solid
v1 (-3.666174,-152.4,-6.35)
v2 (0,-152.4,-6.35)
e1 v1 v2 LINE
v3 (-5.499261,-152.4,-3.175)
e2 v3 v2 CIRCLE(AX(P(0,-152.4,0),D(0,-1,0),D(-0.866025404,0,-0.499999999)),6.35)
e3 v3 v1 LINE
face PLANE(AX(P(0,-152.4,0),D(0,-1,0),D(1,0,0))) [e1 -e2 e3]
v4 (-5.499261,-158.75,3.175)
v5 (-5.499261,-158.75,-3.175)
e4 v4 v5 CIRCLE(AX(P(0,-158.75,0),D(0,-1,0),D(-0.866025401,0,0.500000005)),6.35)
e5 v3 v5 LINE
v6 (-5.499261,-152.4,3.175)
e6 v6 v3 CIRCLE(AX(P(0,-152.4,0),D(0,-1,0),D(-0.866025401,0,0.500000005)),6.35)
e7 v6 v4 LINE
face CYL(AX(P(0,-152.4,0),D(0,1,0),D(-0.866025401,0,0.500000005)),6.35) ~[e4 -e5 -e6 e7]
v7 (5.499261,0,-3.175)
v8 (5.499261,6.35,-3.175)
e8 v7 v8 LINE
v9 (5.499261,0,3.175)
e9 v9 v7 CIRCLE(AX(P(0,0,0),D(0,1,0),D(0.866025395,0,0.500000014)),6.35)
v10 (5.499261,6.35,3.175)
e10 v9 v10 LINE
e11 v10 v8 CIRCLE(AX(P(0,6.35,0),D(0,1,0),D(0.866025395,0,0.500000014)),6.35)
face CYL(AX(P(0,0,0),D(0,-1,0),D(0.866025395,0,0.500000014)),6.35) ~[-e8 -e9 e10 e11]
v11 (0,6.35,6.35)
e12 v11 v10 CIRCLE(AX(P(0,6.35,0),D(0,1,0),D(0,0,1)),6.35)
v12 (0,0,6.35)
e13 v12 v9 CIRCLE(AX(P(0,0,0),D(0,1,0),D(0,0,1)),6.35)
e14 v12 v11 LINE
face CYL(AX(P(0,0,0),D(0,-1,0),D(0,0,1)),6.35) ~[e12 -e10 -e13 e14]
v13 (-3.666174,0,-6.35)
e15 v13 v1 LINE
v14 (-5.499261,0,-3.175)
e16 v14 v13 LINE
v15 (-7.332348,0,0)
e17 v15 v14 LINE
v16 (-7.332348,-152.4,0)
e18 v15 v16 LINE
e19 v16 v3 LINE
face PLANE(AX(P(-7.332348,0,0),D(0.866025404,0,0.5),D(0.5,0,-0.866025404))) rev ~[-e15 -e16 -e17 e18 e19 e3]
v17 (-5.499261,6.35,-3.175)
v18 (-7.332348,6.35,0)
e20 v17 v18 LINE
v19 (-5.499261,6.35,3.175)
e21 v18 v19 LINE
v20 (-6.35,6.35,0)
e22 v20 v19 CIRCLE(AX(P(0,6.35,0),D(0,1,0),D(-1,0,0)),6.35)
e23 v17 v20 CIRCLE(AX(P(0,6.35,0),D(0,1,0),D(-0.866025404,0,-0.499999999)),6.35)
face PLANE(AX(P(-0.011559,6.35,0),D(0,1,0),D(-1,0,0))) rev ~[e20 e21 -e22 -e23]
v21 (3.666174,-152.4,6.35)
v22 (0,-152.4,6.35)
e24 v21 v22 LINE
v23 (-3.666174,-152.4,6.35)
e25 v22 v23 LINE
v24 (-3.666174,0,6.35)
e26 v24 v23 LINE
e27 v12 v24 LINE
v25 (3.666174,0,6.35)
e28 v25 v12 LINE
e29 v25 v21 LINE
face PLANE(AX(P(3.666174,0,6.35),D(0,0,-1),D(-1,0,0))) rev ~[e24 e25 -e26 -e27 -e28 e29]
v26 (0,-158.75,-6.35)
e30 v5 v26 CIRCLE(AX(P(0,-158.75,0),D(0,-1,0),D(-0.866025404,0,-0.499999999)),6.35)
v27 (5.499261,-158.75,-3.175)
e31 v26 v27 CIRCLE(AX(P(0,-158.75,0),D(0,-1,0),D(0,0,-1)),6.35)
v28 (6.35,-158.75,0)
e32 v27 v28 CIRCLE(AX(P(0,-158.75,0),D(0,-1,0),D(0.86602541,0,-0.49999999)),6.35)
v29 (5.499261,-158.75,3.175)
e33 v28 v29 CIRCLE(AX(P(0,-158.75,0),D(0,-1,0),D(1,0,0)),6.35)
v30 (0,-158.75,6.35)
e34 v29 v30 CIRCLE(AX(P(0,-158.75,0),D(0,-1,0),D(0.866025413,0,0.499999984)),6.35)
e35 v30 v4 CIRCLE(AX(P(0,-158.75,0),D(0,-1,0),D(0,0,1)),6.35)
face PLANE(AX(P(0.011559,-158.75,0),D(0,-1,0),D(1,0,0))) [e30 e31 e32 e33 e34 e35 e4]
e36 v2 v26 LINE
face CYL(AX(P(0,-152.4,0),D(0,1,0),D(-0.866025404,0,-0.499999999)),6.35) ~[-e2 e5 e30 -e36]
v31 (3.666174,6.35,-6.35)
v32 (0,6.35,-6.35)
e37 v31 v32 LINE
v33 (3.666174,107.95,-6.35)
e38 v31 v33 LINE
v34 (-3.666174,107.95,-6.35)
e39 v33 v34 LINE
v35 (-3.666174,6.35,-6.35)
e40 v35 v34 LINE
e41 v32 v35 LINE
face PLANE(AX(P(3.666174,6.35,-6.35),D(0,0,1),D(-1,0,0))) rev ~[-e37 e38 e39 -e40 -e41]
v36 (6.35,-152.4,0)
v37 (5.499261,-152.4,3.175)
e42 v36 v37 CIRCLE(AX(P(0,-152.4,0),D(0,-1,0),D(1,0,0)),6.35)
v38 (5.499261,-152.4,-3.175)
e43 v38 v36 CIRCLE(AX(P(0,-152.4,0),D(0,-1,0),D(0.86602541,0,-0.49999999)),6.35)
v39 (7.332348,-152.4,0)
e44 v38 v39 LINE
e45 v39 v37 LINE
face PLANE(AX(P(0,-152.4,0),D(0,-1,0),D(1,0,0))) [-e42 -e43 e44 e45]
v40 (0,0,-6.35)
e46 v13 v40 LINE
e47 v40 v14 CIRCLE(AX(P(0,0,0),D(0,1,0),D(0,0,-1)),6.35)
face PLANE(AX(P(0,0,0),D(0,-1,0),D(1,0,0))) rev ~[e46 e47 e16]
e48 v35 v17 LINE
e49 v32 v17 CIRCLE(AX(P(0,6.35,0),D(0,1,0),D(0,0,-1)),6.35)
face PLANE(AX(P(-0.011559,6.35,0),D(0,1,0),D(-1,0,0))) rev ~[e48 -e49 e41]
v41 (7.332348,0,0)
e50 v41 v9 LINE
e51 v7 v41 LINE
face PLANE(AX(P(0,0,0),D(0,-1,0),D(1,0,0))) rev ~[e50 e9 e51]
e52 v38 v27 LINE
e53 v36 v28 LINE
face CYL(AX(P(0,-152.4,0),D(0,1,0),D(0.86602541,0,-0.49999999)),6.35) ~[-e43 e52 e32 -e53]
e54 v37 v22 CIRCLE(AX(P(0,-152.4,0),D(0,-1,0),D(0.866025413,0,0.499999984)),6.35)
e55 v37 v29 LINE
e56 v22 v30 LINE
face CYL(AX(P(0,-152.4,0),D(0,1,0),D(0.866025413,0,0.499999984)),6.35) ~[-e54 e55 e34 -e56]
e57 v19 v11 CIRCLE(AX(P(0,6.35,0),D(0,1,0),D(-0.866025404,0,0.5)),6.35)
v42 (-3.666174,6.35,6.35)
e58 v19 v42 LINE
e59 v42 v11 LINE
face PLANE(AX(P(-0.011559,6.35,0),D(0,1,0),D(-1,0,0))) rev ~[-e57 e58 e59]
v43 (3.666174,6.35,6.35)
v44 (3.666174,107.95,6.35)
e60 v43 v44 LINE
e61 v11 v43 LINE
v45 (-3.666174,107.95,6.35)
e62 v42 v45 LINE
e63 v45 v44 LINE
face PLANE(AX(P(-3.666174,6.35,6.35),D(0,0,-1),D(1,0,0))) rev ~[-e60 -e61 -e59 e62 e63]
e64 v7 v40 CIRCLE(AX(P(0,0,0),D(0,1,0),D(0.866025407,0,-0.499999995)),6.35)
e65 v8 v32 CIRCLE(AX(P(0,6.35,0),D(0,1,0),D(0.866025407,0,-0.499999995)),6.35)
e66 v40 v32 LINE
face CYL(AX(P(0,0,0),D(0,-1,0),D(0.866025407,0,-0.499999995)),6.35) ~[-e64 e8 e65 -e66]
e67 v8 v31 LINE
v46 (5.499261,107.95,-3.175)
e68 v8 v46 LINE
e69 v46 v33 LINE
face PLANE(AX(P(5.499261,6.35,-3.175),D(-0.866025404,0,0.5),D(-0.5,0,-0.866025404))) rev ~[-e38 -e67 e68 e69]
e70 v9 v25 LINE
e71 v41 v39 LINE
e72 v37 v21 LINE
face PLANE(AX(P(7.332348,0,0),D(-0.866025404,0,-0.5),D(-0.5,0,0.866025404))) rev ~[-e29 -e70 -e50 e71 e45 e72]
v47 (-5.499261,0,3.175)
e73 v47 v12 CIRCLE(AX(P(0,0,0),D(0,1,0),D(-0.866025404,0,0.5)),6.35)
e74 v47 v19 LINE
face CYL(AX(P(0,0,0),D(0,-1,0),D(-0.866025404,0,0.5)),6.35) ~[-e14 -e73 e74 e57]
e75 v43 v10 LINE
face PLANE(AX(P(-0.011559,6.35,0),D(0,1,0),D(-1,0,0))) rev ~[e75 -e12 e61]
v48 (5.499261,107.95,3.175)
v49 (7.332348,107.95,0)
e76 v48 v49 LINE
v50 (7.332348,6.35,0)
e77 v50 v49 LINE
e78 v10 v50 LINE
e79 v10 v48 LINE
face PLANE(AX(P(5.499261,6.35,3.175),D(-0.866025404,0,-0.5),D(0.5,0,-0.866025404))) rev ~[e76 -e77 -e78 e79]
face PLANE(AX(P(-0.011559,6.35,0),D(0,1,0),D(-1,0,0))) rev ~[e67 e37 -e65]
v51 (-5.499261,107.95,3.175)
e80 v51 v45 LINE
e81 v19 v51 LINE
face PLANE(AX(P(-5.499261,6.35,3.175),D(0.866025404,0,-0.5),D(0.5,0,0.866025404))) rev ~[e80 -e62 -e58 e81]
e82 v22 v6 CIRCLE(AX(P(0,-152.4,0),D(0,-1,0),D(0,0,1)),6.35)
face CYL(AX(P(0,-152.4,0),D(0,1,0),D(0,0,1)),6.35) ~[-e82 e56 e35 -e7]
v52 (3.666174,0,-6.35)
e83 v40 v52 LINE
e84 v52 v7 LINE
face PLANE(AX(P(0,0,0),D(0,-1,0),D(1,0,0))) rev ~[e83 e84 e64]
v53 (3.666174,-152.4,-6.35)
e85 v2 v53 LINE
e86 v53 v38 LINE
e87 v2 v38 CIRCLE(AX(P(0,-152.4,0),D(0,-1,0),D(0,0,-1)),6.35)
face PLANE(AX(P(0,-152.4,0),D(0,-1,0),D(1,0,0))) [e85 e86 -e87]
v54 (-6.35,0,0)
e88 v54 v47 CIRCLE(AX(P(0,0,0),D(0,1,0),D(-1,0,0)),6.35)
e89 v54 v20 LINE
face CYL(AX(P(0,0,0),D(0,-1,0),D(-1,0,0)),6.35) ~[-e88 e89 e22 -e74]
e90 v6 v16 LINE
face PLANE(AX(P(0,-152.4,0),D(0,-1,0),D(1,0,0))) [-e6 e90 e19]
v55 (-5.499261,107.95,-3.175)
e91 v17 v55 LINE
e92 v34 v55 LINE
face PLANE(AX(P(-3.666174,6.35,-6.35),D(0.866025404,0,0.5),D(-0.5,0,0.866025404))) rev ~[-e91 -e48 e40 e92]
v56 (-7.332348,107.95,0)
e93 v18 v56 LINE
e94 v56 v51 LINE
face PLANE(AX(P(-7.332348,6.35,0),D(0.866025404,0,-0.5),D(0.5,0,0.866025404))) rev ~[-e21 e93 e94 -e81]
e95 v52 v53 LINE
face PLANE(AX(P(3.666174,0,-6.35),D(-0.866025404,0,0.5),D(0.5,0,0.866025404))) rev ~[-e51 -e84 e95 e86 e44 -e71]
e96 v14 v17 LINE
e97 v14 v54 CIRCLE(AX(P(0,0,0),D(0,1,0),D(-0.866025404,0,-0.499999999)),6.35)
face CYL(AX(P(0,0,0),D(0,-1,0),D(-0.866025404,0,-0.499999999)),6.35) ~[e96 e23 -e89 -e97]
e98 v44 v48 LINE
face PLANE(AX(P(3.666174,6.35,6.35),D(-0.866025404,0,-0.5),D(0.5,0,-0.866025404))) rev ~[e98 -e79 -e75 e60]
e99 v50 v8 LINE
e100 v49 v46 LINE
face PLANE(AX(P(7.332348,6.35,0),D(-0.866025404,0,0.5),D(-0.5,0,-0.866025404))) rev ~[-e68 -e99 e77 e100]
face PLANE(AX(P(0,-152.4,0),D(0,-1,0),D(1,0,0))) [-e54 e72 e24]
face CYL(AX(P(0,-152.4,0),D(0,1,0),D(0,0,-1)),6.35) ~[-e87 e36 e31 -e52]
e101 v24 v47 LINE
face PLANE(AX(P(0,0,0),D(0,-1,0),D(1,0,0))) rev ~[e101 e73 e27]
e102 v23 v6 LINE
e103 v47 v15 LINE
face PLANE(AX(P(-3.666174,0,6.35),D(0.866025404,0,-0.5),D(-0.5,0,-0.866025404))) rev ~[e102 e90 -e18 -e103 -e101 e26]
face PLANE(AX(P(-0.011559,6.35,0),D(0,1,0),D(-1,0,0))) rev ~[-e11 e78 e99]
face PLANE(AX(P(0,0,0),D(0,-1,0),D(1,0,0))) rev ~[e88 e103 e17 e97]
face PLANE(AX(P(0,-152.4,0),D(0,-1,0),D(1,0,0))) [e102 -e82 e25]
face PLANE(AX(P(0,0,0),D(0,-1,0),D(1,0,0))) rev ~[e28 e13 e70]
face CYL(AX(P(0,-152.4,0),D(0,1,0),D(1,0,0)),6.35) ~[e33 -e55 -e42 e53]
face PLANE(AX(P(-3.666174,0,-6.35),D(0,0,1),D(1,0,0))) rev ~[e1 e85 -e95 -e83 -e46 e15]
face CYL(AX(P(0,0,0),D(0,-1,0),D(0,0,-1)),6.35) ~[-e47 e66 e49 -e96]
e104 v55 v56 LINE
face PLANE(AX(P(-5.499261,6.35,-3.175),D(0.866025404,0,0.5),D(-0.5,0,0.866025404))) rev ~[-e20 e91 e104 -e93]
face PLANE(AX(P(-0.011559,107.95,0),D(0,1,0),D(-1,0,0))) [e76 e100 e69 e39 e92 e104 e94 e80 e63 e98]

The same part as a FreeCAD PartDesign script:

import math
import FreeCAD as App
import Part
import Sketcher
Q = App.Units.Quantity


def add_polygon(sketch, points):
    """Adds a closed chain of lines whose ends are joined by coincident constraints."""
    first, n = sketch.GeometryCount, len(points)
    for a, b in zip(points, points[1:] + points[:1]):
        sketch.addGeometry(Part.LineSegment(App.Vector(*a, 0), App.Vector(*b, 0)), False)
    for i in range(n):
        sketch.addConstraint(Sketcher.Constraint("Coincident", first + i, 2, first + (i + 1) % n, 1))

doc = App.newDocument("Part")
params = doc.addObject("Spreadsheet::Sheet", "Params")
for row, (alias, value) in enumerate([
    ("pad1_length", "6 in"),
    ("sketch2_radius", "0.25 in"),
    ("pad2_length", "0.25 in"),
    ("sketch3_radius", "0.25 in"),
    ("pad3_length", "0.25 in"),
    ("pad4_length", "4 in"),
], start=1):
    params.set(f"A{row}", alias)
    params.set(f"B{row}", "=" + value)
    params.setAlias(f"B{row}", alias)

body = doc.addObject("PartDesign::Body", "Body")

# Sketch on XZ plane
sketch1 = doc.addObject("Sketcher::SketchObject", "Sketch")
body.addObject(sketch1)
sketch1.AttachmentSupport = (doc.XZ_Plane, [""])
sketch1.MapMode = "FlatFace"
add_polygon(sketch1, [(-4, -6), (4, -6), (7, 0), (4, 6), (-4, 6), (-7, 0)])  # lines 0-5
sketch1.addConstraint([
    Sketcher.Constraint("Horizontal", 0),
    Sketcher.Constraint("Horizontal", 3),
    Sketcher.Constraint("Symmetric", 0, 2, 3, 2, -1, 1),
    Sketcher.Constraint("Symmetric", 1, 2, 4, 2, -1, 1),
    Sketcher.Constraint("PointOnObject", 1, 2, -1),
    Sketcher.Constraint("Parallel", 2, 5),
    Sketcher.Constraint("Vertical", 0, 2, 2, 2),
    Sketcher.Constraint("Angle", 1, Q("60 deg")),
    Sketcher.Constraint("DistanceY", 0, 2, 2, 2, Q("0.5 in")),
    Sketcher.Constraint("DistanceX", 0, 1, 0, 2, 7.332348),
])
pad1 = doc.addObject("PartDesign::Pad", "Pad")
body.addObject(pad1)
pad1.Profile = sketch1
pad1.setExpression("Length", "Params.pad1_length")

# Sketch on XZ plane
sketch2 = doc.addObject("Sketcher::SketchObject", "Sketch001")
body.addObject(sketch2)
sketch2.AttachmentSupport = (doc.XZ_Plane, [""])
sketch2.MapMode = "FlatFace"
sketch2.AttachmentOffset = App.Placement(App.Vector(0, 0, 6 * 25.4), App.Rotation())
sketch2.addGeometry([
    Part.ArcOfCircle(Part.Circle(App.Vector(0, 0, 0), App.Vector(0, 0, 1), 6.3), math.radians(-30), math.radians(0)),  # 0
    Part.ArcOfCircle(Part.Circle(App.Vector(0, 0, 0), App.Vector(0, 0, 1), 6.3), math.radians(0), math.radians(30)),  # 1
    Part.ArcOfCircle(Part.Circle(App.Vector(0, 0, 0), App.Vector(0, 0, 1), 6.3), math.radians(30), math.radians(90)),  # 2
    Part.ArcOfCircle(Part.Circle(App.Vector(0, 0, 0), App.Vector(0, 0, 1), 6.3), math.radians(90), math.radians(150)),  # 3
    Part.ArcOfCircle(Part.Circle(App.Vector(0, 0, 0), App.Vector(0, 0, 1), 6.3), math.radians(150), math.radians(210)),  # 4
    Part.ArcOfCircle(Part.Circle(App.Vector(0, 0, 0), App.Vector(0, 0, 1), 6.3), math.radians(-150), math.radians(-90)),  # 5
    Part.ArcOfCircle(Part.Circle(App.Vector(0, 0, 0), App.Vector(0, 0, 1), 6.3), math.radians(-90), math.radians(-30)),  # 6
], False)
sketch2.addConstraint([
    Sketcher.Constraint("Tangent", 0, 2, 1, 1),
    Sketcher.Constraint("Tangent", 1, 2, 2, 1),
    Sketcher.Constraint("Tangent", 2, 2, 3, 1),
    Sketcher.Constraint("Tangent", 3, 2, 4, 1),
    Sketcher.Constraint("Tangent", 4, 2, 5, 1),
    Sketcher.Constraint("Tangent", 5, 2, 6, 1),
    Sketcher.Constraint("Tangent", 6, 2, 0, 1),
    Sketcher.Constraint("Coincident", 0, 3, -1, 1),
    Sketcher.Constraint("Coincident", 2, 3, -1, 1),
    Sketcher.Constraint("Coincident", 4, 3, -1, 1),
    Sketcher.Constraint("PointOnObject", 0, 2, -1),
    Sketcher.Constraint("PointOnObject", 2, 2, -2),
    Sketcher.Constraint("PointOnObject", 5, 2, -2),
    Sketcher.Constraint("Horizontal", 1, 2, 3, 2),
    Sketcher.Constraint("Horizontal", 4, 2, 6, 2),
    Sketcher.Constraint("Vertical", 3, 2, 4, 2),
    Sketcher.Constraint("Radius", 0, Q("0.25 in")),
    Sketcher.Constraint("DistanceY", 6, 2, 1, 2, Q("0.25 in")),
])
sketch2.setExpression("Constraints[16]", "Params.sketch2_radius")
pad2 = doc.addObject("PartDesign::Pad", "Pad001")
body.addObject(pad2)
pad2.Profile = sketch2
pad2.setExpression("Length", "Params.pad2_length")

# Sketch on XZ plane
sketch3 = doc.addObject("Sketcher::SketchObject", "Sketch002")
body.addObject(sketch3)
sketch3.AttachmentSupport = (doc.XZ_Plane, [""])
sketch3.MapMode = "FlatFace"
sketch3.addGeometry([
    Part.ArcOfCircle(Part.Circle(App.Vector(0, 0, 0), App.Vector(0, 0, 1), 6.4), math.radians(180), math.radians(210)),  # 0
    Part.ArcOfCircle(Part.Circle(App.Vector(0, 0, 0), App.Vector(0, 0, 1), 6.3), math.radians(150), math.radians(180)),  # 1
    Part.ArcOfCircle(Part.Circle(App.Vector(0, 0, 0), App.Vector(0, 0, 1), 6.3), math.radians(90), math.radians(150)),  # 2
    Part.ArcOfCircle(Part.Circle(App.Vector(0, 0, 0), App.Vector(0, 0, 1), 6.3), math.radians(30), math.radians(90)),  # 3
    Part.ArcOfCircle(Part.Circle(App.Vector(0, 0, 0), App.Vector(0, 0, 1), 6.3), math.radians(-30), math.radians(30)),  # 4
    Part.ArcOfCircle(Part.Circle(App.Vector(0, 0, 0), App.Vector(0, 0, 1), 6.3), math.radians(-90), math.radians(-30)),  # 5
    Part.ArcOfCircle(Part.Circle(App.Vector(0, 0, 0), App.Vector(0, 0, 1), 6.3), math.radians(-150), math.radians(-90)),  # 6
], False)
sketch3.addConstraint([
    Sketcher.Constraint("Tangent", 0, 1, 1, 2),
    Sketcher.Constraint("Tangent", 1, 1, 2, 2),
    Sketcher.Constraint("Tangent", 2, 1, 3, 2),
    Sketcher.Constraint("Tangent", 3, 1, 4, 2),
    Sketcher.Constraint("Tangent", 4, 1, 5, 2),
    Sketcher.Constraint("Tangent", 5, 1, 6, 2),
    Sketcher.Constraint("Tangent", 6, 1, 0, 2),
    Sketcher.Constraint("Coincident", 0, 3, -1, 1),
    Sketcher.Constraint("Coincident", 2, 3, -1, 1),
    Sketcher.Constraint("Coincident", 4, 3, -1, 1),
    Sketcher.Constraint("PointOnObject", 0, 1, -1),
    Sketcher.Constraint("PointOnObject", 2, 1, -2),
    Sketcher.Constraint("PointOnObject", 5, 1, -2),
    Sketcher.Constraint("Horizontal", 1, 1, 3, 1),
    Sketcher.Constraint("Horizontal", 4, 1, 6, 1),
    Sketcher.Constraint("Vertical", 3, 1, 4, 1),
    Sketcher.Constraint("Radius", 0, Q("0.25 in")),
    Sketcher.Constraint("DistanceY", 6, 1, 1, 1, Q("0.25 in")),
])
sketch3.setExpression("Constraints[16]", "Params.sketch3_radius")
pad3 = doc.addObject("PartDesign::Pad", "Pad002")
body.addObject(pad3)
pad3.Profile = sketch3
pad3.setExpression("Length", "Params.pad3_length")
pad3.Reversed = True

# Sketch on XZ plane
sketch4 = doc.addObject("Sketcher::SketchObject", "Sketch003")
body.addObject(sketch4)
sketch4.AttachmentSupport = (doc.XZ_Plane, [""])
sketch4.MapMode = "FlatFace"
sketch4.AttachmentOffset = App.Placement(App.Vector(0, 0, -0.25 * 25.4), App.Rotation())
add_polygon(sketch4, [(-3.7, -6.3), (-5.5, -3.2), (-7.3, 0), (-5.5, 3.2), (-3.7, 6.3), (3.7, 6.3), (5.5, 3.2), (7.3, 0), (5.5, -3.2), (3.7, -6.3)])  # lines 0-9
sketch4.addConstraint([
    Sketcher.Constraint("Horizontal", 4),
    Sketcher.Constraint("Horizontal", 9),
    Sketcher.Constraint("Symmetric", 0, 2, 5, 2, -1, 1),
    Sketcher.Constraint("Symmetric", 1, 2, 6, 2, -1, 1),
    Sketcher.Constraint("Symmetric", 2, 2, 7, 2, -1, 1),
    Sketcher.Constraint("Symmetric", 3, 2, 8, 2, -1, 1),
    Sketcher.Constraint("Symmetric", 2, 2, 5, 2, -2),
    Sketcher.Constraint("PointOnObject", 1, 2, -1),
    Sketcher.Constraint("Parallel", 0, 1),
    Sketcher.Constraint("Parallel", 2, 3),
    Sketcher.Constraint("Parallel", 1, 5),
    Sketcher.Constraint("Equal", 0, 1),
    Sketcher.Constraint("Angle", 0, Q("120 deg")),
    Sketcher.Constraint("DistanceY", -1, 1, 3, 2, Q("0.25 in")),
    Sketcher.Constraint("DistanceX", 4, 1, 4, 2, 7.332348),
])
pad4 = doc.addObject("PartDesign::Pad", "Pad003")
body.addObject(pad4)
pad4.Profile = sketch4
pad4.setExpression("Length", "Params.pad4_length")
pad4.Reversed = True

doc.recompute()
